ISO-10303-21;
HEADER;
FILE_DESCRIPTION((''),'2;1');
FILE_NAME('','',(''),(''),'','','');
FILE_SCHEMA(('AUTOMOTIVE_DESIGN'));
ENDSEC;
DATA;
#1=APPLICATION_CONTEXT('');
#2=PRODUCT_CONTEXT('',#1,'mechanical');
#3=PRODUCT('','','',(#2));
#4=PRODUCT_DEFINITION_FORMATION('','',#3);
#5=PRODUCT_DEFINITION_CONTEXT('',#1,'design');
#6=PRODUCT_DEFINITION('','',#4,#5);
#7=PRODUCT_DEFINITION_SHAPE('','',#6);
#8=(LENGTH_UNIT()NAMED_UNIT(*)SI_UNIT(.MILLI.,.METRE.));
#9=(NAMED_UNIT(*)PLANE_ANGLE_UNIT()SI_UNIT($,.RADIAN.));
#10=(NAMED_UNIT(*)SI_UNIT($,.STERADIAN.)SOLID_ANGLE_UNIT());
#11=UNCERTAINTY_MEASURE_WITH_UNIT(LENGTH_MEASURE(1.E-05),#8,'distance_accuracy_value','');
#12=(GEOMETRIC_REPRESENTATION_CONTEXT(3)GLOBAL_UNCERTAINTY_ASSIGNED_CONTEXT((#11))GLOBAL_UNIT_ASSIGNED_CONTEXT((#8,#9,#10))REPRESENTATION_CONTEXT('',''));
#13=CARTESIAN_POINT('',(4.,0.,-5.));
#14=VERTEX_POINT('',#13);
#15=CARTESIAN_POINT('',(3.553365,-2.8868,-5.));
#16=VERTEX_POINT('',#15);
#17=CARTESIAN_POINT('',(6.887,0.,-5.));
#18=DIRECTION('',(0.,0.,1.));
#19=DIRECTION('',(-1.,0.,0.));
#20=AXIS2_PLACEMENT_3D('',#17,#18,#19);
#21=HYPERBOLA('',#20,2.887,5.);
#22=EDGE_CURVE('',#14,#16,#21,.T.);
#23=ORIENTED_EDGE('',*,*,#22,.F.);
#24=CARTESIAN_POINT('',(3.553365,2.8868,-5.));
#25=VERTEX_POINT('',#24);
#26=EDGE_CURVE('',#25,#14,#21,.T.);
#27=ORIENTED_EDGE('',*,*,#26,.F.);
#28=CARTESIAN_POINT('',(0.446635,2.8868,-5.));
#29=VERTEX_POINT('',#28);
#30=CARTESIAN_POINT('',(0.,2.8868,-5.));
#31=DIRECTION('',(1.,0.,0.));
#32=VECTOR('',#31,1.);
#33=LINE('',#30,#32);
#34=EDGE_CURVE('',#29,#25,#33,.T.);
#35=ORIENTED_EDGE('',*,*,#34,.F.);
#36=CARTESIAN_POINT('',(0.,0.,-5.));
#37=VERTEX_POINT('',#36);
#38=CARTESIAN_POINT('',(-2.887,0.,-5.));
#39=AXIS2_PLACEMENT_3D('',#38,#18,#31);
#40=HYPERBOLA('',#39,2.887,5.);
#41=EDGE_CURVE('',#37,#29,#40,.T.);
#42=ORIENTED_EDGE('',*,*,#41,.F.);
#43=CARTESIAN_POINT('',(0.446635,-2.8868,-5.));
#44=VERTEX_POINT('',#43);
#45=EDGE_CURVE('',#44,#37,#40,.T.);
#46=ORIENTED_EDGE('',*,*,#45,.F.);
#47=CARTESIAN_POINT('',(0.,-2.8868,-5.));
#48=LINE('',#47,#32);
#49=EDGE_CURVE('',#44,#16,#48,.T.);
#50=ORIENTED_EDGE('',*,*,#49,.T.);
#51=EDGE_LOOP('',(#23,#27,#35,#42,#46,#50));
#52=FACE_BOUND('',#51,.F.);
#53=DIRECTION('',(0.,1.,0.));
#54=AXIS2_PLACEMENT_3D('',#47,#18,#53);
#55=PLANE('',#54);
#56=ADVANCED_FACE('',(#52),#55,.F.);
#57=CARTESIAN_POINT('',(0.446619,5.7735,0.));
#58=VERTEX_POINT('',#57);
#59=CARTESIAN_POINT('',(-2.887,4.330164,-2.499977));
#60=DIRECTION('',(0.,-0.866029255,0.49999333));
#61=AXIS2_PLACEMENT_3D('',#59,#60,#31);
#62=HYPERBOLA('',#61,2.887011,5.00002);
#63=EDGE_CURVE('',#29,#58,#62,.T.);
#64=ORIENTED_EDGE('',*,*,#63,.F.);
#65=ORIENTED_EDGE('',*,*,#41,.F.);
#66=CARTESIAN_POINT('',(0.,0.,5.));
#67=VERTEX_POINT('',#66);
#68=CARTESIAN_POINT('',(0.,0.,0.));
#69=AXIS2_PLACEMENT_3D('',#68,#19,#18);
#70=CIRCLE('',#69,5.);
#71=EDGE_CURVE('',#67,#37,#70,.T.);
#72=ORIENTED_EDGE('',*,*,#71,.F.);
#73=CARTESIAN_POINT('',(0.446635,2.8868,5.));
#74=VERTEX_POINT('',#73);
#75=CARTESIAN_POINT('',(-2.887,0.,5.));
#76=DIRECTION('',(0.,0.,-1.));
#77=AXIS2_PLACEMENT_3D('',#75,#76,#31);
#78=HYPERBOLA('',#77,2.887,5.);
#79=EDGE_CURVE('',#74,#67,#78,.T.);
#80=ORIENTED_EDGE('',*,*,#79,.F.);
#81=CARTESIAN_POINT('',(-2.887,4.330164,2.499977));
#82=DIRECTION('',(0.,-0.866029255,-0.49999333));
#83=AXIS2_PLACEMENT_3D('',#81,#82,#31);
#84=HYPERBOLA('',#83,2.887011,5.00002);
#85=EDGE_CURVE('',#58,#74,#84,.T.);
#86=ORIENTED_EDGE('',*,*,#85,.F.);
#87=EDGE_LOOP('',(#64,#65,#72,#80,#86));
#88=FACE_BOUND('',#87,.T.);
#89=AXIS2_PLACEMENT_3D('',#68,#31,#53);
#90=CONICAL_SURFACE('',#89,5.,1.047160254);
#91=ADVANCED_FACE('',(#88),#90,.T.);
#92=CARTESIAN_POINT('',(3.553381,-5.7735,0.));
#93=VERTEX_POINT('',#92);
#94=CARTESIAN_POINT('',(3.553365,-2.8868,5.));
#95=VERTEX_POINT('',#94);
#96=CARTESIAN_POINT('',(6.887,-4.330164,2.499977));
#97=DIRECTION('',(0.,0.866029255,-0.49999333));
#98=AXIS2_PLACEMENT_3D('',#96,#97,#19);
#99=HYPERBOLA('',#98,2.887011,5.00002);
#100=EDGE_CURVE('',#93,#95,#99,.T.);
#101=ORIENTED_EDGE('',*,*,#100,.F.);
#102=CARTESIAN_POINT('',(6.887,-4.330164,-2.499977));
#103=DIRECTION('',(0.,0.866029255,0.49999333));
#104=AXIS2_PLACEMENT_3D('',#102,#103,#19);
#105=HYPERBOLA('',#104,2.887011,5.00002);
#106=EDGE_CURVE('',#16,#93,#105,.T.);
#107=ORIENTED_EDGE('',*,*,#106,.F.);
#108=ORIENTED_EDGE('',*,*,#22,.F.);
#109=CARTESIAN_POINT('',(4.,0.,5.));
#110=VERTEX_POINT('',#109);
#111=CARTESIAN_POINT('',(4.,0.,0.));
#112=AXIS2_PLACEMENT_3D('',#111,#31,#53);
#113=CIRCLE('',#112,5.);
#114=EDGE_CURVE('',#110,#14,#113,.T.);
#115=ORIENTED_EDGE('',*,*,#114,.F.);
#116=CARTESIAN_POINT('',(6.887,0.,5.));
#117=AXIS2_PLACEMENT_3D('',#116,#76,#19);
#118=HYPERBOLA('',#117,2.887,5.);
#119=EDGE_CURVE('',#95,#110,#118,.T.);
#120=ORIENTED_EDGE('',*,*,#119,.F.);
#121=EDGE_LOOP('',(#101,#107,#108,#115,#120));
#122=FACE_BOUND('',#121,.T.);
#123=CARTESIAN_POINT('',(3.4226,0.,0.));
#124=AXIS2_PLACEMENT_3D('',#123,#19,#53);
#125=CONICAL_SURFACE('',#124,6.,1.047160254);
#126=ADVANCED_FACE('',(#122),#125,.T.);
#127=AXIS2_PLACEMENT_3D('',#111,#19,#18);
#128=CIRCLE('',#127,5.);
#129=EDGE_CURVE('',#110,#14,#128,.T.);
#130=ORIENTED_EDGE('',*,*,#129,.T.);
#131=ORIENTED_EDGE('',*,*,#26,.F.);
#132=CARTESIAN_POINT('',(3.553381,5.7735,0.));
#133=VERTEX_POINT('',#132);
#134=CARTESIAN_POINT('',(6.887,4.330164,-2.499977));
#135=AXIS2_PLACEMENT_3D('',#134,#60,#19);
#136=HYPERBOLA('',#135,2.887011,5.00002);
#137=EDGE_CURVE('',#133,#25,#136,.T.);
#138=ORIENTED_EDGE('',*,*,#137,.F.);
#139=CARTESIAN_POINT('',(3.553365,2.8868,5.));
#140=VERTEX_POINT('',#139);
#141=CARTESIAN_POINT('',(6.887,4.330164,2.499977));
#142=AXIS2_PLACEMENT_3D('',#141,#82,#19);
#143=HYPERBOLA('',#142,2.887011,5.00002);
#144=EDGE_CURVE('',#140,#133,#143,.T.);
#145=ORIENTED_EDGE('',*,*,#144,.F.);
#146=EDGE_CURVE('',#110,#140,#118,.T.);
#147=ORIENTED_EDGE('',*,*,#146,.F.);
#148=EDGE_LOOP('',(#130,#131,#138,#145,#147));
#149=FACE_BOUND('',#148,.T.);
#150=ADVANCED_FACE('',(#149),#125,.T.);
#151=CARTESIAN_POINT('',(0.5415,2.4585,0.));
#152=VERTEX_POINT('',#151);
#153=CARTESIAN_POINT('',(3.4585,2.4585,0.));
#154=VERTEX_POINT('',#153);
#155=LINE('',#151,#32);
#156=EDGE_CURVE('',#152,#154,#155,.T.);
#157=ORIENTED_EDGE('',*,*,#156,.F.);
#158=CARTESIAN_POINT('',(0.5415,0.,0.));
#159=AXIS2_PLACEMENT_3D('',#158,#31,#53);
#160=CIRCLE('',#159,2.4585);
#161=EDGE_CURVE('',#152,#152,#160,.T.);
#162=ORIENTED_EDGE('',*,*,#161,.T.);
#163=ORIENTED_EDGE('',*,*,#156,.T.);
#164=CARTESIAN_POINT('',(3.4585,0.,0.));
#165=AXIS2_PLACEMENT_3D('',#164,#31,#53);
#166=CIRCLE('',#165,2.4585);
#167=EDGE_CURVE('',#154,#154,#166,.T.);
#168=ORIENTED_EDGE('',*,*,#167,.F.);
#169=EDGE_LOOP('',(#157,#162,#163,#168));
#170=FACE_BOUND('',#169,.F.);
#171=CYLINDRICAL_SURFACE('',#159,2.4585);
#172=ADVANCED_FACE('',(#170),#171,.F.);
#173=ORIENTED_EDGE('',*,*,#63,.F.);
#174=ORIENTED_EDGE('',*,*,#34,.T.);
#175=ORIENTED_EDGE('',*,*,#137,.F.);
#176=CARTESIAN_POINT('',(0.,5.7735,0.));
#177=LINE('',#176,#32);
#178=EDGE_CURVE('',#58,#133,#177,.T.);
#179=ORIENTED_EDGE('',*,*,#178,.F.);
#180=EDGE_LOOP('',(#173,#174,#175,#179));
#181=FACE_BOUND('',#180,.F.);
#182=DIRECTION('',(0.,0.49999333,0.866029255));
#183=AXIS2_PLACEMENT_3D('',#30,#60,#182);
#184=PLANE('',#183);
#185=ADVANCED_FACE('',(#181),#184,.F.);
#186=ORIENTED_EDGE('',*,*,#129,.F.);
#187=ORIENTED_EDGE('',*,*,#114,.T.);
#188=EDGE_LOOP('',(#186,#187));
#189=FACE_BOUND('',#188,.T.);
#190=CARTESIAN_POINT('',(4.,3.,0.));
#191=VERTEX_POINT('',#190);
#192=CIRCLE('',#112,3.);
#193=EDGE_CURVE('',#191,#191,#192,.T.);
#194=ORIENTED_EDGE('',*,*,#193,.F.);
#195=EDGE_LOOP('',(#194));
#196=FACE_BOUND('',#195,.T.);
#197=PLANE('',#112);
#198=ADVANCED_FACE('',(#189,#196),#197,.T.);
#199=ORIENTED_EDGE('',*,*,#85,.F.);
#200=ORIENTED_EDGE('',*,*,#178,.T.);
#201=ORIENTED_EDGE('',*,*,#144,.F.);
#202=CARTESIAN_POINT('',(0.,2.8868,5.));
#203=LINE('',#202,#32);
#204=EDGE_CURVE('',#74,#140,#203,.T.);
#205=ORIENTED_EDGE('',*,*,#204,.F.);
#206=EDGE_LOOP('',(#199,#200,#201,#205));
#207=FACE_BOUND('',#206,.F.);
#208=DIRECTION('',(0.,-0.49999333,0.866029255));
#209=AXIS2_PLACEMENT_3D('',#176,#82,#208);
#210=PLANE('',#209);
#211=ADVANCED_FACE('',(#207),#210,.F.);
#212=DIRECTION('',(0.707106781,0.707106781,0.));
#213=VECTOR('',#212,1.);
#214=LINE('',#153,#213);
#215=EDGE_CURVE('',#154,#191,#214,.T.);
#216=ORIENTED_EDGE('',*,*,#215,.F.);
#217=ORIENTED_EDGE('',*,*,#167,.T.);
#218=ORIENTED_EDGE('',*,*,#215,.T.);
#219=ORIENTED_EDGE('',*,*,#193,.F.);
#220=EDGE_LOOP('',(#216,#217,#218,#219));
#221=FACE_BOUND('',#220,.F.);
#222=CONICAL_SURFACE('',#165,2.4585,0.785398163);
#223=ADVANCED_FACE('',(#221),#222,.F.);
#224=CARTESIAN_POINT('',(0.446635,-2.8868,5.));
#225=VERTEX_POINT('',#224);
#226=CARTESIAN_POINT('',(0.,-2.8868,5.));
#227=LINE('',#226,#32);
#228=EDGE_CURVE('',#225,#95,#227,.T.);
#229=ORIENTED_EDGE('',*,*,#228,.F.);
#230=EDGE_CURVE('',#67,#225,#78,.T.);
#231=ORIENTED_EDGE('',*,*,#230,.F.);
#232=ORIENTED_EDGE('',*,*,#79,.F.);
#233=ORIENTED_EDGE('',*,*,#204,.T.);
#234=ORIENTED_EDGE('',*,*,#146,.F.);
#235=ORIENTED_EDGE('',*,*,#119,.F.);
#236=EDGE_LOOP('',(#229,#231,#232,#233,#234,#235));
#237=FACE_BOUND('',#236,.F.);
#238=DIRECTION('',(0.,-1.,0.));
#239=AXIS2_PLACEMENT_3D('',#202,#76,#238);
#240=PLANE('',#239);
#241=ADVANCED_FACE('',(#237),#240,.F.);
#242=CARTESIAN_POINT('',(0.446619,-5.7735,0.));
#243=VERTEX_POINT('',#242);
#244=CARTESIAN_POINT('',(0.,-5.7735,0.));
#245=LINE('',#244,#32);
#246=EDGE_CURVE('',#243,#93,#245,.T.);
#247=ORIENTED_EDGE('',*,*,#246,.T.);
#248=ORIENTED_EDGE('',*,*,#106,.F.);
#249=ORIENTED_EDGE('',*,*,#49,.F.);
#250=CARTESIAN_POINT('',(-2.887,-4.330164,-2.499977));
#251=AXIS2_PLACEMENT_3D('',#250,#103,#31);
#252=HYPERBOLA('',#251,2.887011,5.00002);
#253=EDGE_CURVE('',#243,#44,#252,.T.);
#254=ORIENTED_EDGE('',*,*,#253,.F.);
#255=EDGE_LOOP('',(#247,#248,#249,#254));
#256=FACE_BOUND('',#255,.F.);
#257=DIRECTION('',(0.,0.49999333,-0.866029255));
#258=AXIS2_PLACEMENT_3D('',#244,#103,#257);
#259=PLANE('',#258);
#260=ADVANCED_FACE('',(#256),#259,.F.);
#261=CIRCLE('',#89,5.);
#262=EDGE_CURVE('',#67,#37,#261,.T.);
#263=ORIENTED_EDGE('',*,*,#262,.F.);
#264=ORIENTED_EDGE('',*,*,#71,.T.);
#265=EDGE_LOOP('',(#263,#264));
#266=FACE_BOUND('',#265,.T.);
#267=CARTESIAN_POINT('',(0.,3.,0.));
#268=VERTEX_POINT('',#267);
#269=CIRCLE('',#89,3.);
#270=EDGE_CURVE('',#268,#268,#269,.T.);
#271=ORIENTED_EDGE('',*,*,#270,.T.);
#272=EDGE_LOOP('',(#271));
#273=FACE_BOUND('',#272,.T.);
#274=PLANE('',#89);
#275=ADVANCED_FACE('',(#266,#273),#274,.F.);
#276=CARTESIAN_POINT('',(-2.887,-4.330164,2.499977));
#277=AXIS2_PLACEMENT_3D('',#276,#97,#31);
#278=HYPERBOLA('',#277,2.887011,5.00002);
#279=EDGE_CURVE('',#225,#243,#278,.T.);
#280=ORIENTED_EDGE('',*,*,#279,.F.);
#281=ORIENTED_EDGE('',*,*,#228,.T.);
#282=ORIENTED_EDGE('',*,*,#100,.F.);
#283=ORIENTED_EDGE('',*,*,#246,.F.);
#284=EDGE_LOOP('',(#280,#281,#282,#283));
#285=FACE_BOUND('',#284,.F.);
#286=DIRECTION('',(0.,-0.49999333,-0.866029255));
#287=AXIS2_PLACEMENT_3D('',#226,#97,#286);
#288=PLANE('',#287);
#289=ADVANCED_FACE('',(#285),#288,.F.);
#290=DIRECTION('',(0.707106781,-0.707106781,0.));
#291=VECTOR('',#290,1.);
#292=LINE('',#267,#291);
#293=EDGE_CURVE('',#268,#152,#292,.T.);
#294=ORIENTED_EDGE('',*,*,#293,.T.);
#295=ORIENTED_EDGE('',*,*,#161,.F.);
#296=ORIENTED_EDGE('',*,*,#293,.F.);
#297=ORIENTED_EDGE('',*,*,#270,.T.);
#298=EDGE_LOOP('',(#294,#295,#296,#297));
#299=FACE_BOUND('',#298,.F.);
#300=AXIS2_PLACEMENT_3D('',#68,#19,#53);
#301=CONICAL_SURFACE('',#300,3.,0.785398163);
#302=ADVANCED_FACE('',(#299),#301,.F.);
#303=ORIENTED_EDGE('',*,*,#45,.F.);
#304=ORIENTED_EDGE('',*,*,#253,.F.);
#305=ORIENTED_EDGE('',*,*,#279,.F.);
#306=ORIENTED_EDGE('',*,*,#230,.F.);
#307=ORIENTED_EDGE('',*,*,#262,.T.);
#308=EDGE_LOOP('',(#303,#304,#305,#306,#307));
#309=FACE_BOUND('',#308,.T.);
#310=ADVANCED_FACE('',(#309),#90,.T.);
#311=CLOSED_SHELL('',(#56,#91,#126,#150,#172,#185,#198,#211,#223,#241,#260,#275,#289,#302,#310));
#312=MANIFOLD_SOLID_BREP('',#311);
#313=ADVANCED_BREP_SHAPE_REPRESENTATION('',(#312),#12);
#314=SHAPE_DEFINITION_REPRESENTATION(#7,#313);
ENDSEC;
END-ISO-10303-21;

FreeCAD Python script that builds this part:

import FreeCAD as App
import Part
import Sketcher
from FreeCAD import Vector
Q = App.Units.Quantity

doc = App.newDocument("Part")
params = doc.addObject("Spreadsheet::Sheet", "Params")
for row, (alias, value) in enumerate([
    ("sketch1_width", "4 mm"),
    ("sketch1_height", "5 mm"),
    ("revolution_angle", "360 deg"),
    ("sketch2_width", "4 mm"),
    ("sketch2_height", "3 mm"),
    ("groove_angle", "360 deg"),
    ("sketch3_width", "20 mm"),
    ("pocket1_length", "4 mm"),
], start=1):
    params.set(f"A{row}", alias)
    params.set(f"B{row}", "=" + value)
    params.setAlias(f"B{row}", alias)

body = doc.addObject("PartDesign::Body", "Body")

# Sketch on XY plane
sketch1 = body.newObject("Sketcher::SketchObject", "Sketch")
sketch1.AttachmentSupport = (doc.getObject("XY_Plane"), [""])
sketch1.MapMode = "FlatFace"
sketch1.addGeometry([
    Part.LineSegment(Vector(0, 0, 0), Vector(4, 0, 0)),  # 0
    Part.LineSegment(Vector(4, 0, 0), Vector(4, 5, 0)),  # 1
    Part.LineSegment(Vector(4, 5, 0), Vector(3.4, 6, 0)),  # 2
    Part.LineSegment(Vector(3.4, 6, 0), Vector(0.6, 6, 0)),  # 3
    Part.LineSegment(Vector(0.6, 6, 0), Vector(0, 5, 0)),  # 4
    Part.LineSegment(Vector(0, 5, 0), Vector(0, 0, 0)),  # 5
], False)
sketch1.addConstraint([
    Sketcher.Constraint("Coincident", 0, 2, 1, 1),
    Sketcher.Constraint("Coincident", 1, 2, 2, 1),
    Sketcher.Constraint("Coincident", 2, 2, 3, 1),
    Sketcher.Constraint("Coincident", 3, 2, 4, 1),
    Sketcher.Constraint("Coincident", 4, 2, 5, 1),
    Sketcher.Constraint("Coincident", 5, 2, 0, 1),
    Sketcher.Constraint("Horizontal", 0),
    Sketcher.Constraint("Vertical", 1),
    Sketcher.Constraint("Horizontal", 3),
    Sketcher.Constraint("Vertical", 5),
    Sketcher.Constraint("Coincident", 5, 2, -1, 1),
    Sketcher.Constraint("Horizontal", 1, 2, 4, 2),
    Sketcher.Constraint("Equal", 2, 4),
    Sketcher.Constraint("DistanceX", 0, 1, 0, 2, 4.0),
    Sketcher.Constraint("DistanceY", 1, 1, 1, 2, 5.0),
    Sketcher.Constraint("DistanceY", -1, 1, 2, 2, 6.0),
    Sketcher.Constraint("DistanceX", 3, 2, 3, 1, 2.8452),
])
sketch1.setExpression("Constraints[13]", "Params.sketch1_width")
sketch1.setExpression("Constraints[14]", "Params.sketch1_height")
revolution = body.newObject("PartDesign::Revolution", "Revolution")
revolution.Profile = sketch1
revolution.ReferenceAxis = (sketch1, ["H_Axis"])
revolution.setExpression("Angle", "Params.revolution_angle")

# Sketch on XY plane
sketch2 = body.newObject("Sketcher::SketchObject", "Sketch001")
sketch2.AttachmentSupport = (doc.getObject("XY_Plane"), [""])
sketch2.MapMode = "FlatFace"
sketch2.addGeometry([
    Part.LineSegment(Vector(0, 0, 0), Vector(4, 0, 0)),  # 0
    Part.LineSegment(Vector(4, 0, 0), Vector(4, 3, 0)),  # 1
    Part.LineSegment(Vector(4, 3, 0), Vector(3.5, 2.5, 0)),  # 2
    Part.LineSegment(Vector(3.5, 2.5, 0), Vector(0.5, 2.5, 0)),  # 3
    Part.LineSegment(Vector(0.5, 2.5, 0), Vector(0, 3, 0)),  # 4
    Part.LineSegment(Vector(0, 3, 0), Vector(0, 0, 0)),  # 5
], False)
sketch2.addConstraint([
    Sketcher.Constraint("Coincident", 0, 2, 1, 1),
    Sketcher.Constraint("Coincident", 1, 2, 2, 1),
    Sketcher.Constraint("Coincident", 2, 2, 3, 1),
    Sketcher.Constraint("Coincident", 3, 2, 4, 1),
    Sketcher.Constraint("Coincident", 4, 2, 5, 1),
    Sketcher.Constraint("Coincident", 5, 2, 0, 1),
    Sketcher.Constraint("Horizontal", 0),
    Sketcher.Constraint("Vertical", 1),
    Sketcher.Constraint("Horizontal", 3),
    Sketcher.Constraint("Vertical", 5),
    Sketcher.Constraint("Coincident", 5, 2, -1, 1),
    Sketcher.Constraint("Perpendicular", 2, 4),
    Sketcher.Constraint("Horizontal", 1, 2, 4, 2),
    Sketcher.Constraint("Equal", 2, 4),
    Sketcher.Constraint("DistanceX", 0, 1, 0, 2, 4.0),
    Sketcher.Constraint("DistanceY", 1, 1, 1, 2, 3.0),
    Sketcher.Constraint("DistanceX", 3, 2, 3, 1, 2.917),
])
sketch2.setExpression("Constraints[14]", "Params.sketch2_width")
sketch2.setExpression("Constraints[15]", "Params.sketch2_height")
groove = body.newObject("PartDesign::Groove", "Groove")
groove.Profile = sketch2
groove.ReferenceAxis = (sketch2, ["H_Axis"])
groove.setExpression("Angle", "Params.groove_angle")

# Sketch on YZ plane
sketch3 = body.newObject("Sketcher::SketchObject", "Sketch002")
sketch3.AttachmentSupport = (doc.getObject("YZ_Plane"), [""])
sketch3.MapMode = "FlatFace"
sketch3.addGeometry([
    Part.LineSegment(Vector(10, 10, 0), Vector(-10, 10, 0)),  # 0
    Part.LineSegment(Vector(-10, 10, 0), Vector(-10, -10, 0)),  # 1
    Part.LineSegment(Vector(-10, -10, 0), Vector(10, -10, 0)),  # 2
    Part.LineSegment(Vector(10, -10, 0), Vector(10, 10, 0)),  # 3
    Part.LineSegment(Vector(-6, 0, 0), Vector(-3, 5, 0)),  # 4
    Part.LineSegment(Vector(-3, 5, 0), Vector(3, 5, 0)),  # 5
    Part.LineSegment(Vector(3, 5, 0), Vector(6, 0, 0)),  # 6
    Part.LineSegment(Vector(6, 0, 0), Vector(3, -5, 0)),  # 7
    Part.LineSegment(Vector(3, -5, 0), Vector(-3, -5, 0)),  # 8
    Part.LineSegment(Vector(-3, -5, 0), Vector(-6, 0, 0)),  # 9
], False)
sketch3.addConstraint([
    Sketcher.Constraint("Coincident", 0, 2, 1, 1),
    Sketcher.Constraint("Coincident", 1, 2, 2, 1),
    Sketcher.Constraint("Coincident", 2, 2, 3, 1),
    Sketcher.Constraint("Coincident", 3, 2, 0, 1),
    Sketcher.Constraint("Coincident", 4, 2, 5, 1),
    Sketcher.Constraint("Coincident", 5, 2, 6, 1),
    Sketcher.Constraint("Coincident", 6, 2, 7, 1),
    Sketcher.Constraint("Coincident", 7, 2, 8, 1),
    Sketcher.Constraint("Coincident", 8, 2, 9, 1),
    Sketcher.Constraint("Coincident", 9, 2, 4, 1),
    Sketcher.Constraint("Horizontal", 0),
    Sketcher.Constraint("Vertical", 1),
    Sketcher.Constraint("Horizontal", 2),
    Sketcher.Constraint("Vertical", 3),
    Sketcher.Constraint("Horizontal", 5),
    Sketcher.Constraint("Horizontal", 8),
    Sketcher.Constraint("Symmetric", 0, 2, 2, 2, -1, 1),
    Sketcher.Constraint("Symmetric", 4, 2, 7, 2, -1, 1),
    Sketcher.Constraint("Symmetric", 6, 2, 9, 2, -1, 1),
    Sketcher.Constraint("PointOnObject", 6, 2, -1),
    Sketcher.Constraint("Parallel", 6, 9),
    Sketcher.Constraint("Vertical", 5, 2, 7, 2),
    Sketcher.Constraint("Equal", 2, 1),
    Sketcher.Constraint("DistanceX", 0, 2, 0, 1, 20.0),
    Sketcher.Constraint("Angle", 4, Q("60.0004 deg")),
    Sketcher.Constraint("DistanceY", -1, 1, 4, 2, 5.0),
    Sketcher.Constraint("DistanceX", 5, 1, 5, 2, 5.7736),
])
sketch3.setExpression("Constraints[23]", "Params.sketch3_width")
pocket1 = body.newObject("PartDesign::Pocket", "Pocket")
pocket1.Profile = sketch3
pocket1.setExpression("Length", "Params.pocket1_length")
pocket1.Reversed = True

doc.recompute()
